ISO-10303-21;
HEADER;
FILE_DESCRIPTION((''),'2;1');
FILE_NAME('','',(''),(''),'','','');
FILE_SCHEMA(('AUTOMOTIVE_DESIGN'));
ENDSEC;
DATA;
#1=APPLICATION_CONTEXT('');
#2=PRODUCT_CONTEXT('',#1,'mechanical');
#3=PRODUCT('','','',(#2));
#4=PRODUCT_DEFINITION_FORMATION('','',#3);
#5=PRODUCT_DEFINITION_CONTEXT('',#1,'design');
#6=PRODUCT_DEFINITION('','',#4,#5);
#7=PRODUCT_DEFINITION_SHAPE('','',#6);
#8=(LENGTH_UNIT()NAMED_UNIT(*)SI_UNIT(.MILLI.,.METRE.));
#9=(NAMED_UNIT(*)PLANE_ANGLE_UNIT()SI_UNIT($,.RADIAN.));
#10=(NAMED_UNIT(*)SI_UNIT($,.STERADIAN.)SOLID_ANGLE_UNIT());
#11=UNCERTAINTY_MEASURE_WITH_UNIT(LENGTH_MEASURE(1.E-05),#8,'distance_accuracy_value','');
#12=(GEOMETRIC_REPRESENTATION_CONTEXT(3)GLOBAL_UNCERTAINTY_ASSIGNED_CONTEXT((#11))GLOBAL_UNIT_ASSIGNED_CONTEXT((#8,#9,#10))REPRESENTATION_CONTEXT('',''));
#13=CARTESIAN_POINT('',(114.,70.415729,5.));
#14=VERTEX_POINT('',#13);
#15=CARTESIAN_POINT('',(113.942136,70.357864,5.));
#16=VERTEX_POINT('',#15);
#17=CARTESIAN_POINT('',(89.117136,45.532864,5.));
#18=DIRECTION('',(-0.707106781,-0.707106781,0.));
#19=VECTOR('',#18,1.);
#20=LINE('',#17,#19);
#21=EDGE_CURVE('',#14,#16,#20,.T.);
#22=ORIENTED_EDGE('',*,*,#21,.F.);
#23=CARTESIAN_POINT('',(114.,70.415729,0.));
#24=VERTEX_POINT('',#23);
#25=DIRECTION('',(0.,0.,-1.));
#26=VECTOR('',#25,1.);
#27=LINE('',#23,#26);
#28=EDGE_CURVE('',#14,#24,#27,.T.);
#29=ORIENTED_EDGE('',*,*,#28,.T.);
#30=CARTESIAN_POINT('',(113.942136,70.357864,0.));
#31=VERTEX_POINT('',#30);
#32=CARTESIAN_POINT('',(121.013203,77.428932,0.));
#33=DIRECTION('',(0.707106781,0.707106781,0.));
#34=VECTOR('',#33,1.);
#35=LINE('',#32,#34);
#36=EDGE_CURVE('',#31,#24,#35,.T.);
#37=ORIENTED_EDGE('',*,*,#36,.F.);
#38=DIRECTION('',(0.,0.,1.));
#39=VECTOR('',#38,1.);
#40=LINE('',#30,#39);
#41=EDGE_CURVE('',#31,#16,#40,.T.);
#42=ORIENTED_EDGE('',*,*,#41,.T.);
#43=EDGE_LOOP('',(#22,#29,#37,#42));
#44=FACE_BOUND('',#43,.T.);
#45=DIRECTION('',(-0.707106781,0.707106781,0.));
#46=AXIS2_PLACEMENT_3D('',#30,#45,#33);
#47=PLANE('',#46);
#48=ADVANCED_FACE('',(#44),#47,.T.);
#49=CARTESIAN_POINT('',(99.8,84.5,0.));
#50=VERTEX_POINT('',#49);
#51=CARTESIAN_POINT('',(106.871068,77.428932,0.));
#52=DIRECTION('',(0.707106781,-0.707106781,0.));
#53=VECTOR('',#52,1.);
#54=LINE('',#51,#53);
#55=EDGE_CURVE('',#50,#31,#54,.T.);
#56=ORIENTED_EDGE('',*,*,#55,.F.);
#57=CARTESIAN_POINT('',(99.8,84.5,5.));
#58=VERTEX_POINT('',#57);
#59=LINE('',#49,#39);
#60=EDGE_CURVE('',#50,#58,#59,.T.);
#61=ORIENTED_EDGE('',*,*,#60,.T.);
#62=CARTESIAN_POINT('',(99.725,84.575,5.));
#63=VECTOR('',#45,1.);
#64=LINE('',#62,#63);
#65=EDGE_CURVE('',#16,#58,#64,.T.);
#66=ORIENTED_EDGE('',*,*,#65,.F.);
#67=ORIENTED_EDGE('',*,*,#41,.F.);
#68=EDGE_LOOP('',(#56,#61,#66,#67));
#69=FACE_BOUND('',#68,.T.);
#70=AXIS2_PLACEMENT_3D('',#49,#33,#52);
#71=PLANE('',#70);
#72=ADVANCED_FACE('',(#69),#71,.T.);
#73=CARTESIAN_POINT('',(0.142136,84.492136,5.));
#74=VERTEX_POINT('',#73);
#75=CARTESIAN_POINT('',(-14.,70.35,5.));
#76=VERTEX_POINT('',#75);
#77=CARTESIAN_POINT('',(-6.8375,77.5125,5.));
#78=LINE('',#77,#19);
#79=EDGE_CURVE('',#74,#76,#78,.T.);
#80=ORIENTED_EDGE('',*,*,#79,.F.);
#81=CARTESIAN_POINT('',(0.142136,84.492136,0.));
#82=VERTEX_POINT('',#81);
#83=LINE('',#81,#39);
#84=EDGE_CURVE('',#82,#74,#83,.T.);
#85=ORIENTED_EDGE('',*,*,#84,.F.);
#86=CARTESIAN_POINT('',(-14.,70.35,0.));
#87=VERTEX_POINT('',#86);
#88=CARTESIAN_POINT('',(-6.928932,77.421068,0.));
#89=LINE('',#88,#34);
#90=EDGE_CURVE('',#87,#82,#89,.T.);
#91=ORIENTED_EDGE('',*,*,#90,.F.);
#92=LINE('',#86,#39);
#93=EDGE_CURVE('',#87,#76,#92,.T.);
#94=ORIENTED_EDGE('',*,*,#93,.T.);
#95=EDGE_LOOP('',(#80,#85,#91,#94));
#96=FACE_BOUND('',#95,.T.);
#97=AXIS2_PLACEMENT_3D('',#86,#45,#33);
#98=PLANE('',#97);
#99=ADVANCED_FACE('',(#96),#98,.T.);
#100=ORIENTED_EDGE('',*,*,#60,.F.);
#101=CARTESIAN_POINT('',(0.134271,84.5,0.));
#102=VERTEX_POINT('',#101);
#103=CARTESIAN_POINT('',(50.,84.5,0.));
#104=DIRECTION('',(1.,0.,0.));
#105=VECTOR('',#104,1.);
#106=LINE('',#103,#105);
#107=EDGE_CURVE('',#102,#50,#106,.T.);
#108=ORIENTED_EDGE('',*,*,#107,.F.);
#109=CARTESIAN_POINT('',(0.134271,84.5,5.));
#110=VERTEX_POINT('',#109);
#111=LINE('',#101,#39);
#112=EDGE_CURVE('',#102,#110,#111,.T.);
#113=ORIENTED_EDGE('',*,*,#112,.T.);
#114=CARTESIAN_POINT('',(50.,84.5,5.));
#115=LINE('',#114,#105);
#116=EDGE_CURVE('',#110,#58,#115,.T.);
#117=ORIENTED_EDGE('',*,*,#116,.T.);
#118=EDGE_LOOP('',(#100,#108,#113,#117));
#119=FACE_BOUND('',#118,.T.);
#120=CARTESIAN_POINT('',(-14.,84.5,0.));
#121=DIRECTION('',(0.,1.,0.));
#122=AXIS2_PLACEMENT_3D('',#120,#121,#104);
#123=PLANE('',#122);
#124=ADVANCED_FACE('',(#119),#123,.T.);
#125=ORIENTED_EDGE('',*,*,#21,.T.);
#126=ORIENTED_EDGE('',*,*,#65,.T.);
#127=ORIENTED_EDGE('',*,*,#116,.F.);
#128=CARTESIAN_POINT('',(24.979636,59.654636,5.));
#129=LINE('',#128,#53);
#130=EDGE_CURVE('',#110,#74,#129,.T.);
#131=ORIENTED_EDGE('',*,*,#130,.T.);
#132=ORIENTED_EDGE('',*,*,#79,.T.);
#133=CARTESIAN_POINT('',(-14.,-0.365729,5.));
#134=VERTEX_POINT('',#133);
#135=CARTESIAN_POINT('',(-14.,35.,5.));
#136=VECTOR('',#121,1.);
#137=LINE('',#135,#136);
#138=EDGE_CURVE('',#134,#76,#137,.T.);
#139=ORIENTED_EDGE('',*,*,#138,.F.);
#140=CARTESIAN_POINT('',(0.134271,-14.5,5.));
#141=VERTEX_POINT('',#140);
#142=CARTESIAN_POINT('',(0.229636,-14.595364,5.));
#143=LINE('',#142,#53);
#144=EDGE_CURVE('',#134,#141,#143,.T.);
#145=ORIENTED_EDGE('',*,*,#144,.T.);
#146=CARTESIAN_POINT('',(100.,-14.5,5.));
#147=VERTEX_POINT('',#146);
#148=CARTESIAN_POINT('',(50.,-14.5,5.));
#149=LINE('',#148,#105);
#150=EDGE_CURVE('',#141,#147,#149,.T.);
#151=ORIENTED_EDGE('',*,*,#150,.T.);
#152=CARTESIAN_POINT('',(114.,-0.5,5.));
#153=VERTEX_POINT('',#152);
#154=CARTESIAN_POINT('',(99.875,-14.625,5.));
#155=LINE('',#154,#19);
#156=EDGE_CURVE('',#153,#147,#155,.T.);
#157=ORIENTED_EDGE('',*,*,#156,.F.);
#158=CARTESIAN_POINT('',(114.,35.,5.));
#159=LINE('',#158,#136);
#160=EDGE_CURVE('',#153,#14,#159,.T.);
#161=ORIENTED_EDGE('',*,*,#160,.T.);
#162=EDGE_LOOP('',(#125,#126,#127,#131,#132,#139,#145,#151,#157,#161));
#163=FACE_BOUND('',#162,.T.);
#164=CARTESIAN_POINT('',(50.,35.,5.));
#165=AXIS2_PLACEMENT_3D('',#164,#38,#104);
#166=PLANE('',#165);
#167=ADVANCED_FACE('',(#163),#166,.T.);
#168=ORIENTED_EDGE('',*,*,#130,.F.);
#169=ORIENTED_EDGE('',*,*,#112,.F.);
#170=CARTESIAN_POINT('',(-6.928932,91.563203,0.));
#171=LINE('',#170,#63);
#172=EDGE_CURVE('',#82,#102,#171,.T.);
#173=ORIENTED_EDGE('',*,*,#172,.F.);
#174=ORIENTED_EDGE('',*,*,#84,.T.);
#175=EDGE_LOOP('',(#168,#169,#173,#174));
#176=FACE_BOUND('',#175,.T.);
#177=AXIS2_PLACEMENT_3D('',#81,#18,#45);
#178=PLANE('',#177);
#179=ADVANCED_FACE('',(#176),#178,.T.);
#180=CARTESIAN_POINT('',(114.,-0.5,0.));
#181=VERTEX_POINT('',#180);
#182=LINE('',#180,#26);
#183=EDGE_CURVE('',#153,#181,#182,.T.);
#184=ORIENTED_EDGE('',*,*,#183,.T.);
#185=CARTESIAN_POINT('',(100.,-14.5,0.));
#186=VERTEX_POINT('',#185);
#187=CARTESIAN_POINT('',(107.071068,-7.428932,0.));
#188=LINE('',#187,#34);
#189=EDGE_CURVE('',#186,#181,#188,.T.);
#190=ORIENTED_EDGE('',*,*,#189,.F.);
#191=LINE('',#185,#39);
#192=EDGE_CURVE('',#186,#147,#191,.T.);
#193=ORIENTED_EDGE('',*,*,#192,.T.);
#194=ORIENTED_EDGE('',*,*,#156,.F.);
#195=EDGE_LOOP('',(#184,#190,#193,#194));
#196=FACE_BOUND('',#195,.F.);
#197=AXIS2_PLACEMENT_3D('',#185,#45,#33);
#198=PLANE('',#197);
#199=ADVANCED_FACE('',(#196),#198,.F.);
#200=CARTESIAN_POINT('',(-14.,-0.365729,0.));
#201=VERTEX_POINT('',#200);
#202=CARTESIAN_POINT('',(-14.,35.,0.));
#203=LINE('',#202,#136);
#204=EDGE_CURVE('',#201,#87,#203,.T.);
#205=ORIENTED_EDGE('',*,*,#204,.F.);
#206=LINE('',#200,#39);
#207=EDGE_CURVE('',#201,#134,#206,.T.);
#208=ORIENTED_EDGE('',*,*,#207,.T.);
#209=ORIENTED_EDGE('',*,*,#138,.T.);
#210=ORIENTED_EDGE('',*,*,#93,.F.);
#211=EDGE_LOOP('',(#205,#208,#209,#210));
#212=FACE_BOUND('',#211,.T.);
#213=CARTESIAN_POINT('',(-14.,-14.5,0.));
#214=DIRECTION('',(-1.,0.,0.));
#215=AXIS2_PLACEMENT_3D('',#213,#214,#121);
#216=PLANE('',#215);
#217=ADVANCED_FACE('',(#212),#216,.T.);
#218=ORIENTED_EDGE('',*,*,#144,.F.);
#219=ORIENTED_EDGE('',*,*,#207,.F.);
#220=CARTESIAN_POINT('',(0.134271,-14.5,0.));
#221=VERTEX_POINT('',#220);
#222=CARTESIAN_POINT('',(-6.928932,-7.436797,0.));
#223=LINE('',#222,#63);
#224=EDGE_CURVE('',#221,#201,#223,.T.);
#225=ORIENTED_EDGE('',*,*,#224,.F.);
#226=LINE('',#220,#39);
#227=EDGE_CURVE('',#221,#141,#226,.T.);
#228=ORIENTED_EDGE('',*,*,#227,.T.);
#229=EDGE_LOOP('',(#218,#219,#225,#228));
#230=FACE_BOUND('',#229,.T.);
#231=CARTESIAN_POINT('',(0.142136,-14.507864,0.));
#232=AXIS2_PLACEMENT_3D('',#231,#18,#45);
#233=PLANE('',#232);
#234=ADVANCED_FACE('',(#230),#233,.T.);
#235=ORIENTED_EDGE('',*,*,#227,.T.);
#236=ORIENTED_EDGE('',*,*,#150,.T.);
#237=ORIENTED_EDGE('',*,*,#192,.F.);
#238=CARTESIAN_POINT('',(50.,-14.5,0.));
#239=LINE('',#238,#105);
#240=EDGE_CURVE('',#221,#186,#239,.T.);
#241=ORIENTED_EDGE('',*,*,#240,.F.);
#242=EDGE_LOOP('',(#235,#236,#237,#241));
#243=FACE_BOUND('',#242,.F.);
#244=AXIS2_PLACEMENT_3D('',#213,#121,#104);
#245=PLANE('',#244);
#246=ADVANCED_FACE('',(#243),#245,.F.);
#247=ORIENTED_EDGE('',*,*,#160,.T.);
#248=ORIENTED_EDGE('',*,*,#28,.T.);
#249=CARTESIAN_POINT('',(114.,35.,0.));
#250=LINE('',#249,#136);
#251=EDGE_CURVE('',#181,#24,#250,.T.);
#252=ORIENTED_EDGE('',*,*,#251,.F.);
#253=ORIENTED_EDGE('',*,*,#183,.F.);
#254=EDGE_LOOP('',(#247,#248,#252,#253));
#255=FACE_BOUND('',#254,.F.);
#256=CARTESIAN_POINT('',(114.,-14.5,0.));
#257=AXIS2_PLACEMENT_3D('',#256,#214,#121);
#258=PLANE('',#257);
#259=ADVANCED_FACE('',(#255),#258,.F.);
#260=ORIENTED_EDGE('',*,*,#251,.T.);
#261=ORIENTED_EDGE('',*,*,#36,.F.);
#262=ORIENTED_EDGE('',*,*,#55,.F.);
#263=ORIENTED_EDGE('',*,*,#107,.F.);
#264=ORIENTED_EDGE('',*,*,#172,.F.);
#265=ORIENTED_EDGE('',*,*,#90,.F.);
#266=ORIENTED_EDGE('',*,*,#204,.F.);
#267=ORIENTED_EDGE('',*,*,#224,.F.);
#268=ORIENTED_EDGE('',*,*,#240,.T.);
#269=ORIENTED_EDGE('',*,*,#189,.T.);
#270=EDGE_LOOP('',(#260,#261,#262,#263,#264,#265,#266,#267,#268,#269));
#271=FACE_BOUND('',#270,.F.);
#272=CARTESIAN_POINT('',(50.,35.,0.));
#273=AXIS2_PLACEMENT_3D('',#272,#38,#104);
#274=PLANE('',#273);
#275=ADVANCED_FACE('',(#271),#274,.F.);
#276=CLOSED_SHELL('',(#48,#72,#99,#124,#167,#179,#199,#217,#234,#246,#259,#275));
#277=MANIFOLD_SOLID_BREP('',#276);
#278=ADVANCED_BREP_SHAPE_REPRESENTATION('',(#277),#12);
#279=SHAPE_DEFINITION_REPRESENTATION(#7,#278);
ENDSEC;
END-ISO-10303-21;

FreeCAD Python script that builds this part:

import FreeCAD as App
import Part
import Sketcher
from FreeCAD import Vector
Q = App.Units.Quantity

doc = App.newDocument("Part")
body = doc.addObject("PartDesign::Body", "Body")

sketch1 = doc.addObject("Sketcher::SketchObject", "Sketch")
body.addObject(sketch1)
sketch1.AttachmentSupport = (doc.XY_Plane, [""])
sketch1.MapMode = "FlatFace"
sketch1.addGeometry([
    Part.LineSegment(Vector(0, 20, 0), Vector(0, 0, 0)),
    Part.LineSegment(Vector(0, 0, 0), Vector(20, 0, 0)),
    Part.LineSegment(Vector(20, 0, 0), Vector(20, 20, 0)),
    Part.LineSegment(Vector(20, 20, 0), Vector(0, 20, 0)),
], False)
sketch1.addConstraint([
    Sketcher.Constraint("Coincident", 0, 2, 1, 1),
    Sketcher.Constraint("Coincident", 1, 2, 2, 1),
    Sketcher.Constraint("Coincident", 2, 2, 3, 1),
    Sketcher.Constraint("Coincident", 3, 2, 0, 1),
    Sketcher.Constraint("Vertical", 0),
    Sketcher.Constraint("Horizontal", 1),
    Sketcher.Constraint("Vertical", 2),
    Sketcher.Constraint("Horizontal", 3),
    Sketcher.Constraint("Coincident", 0, 2, -1, 1),
    Sketcher.Constraint("Equal", 3, 0),
    Sketcher.Constraint("DistanceX", 1, 1, 1, 2, Q("20 mm")),
])
pad1 = doc.addObject("PartDesign::Pad", "Pad")
body.addObject(pad1)
pad1.Profile = sketch1
pad1.Length = 20
body2 = doc.addObject("PartDesign::Body", "Body001")
doc.recompute()

body.Placement = App.Placement(Vector(-14, -28.65, 0), App.Rotation(Vector(0, 0, 1), 45))
boolean = doc.addObject("PartDesign::Boolean", "Boolean")
body2.addObject(boolean)
boolean.Type = "Fuse"
boolean.addObjects([body])
body3 = doc.addObject("PartDesign::Body", "Body002")

sketch2 = doc.addObject("Sketcher::SketchObject", "Sketch001")
body3.addObject(sketch2)
sketch2.AttachmentSupport = (doc.getObject("XY_Plane002"), [""])
sketch2.MapMode = "FlatFace"
sketch2.addGeometry([
    Part.LineSegment(Vector(0, 20, 0), Vector(0, 0, 0)),
    Part.LineSegment(Vector(0, 0, 0), Vector(20, 0, 0)),
    Part.LineSegment(Vector(20, 0, 0), Vector(20, 20, 0)),
    Part.LineSegment(Vector(20, 20, 0), Vector(0, 20, 0)),
], False)
sketch2.addConstraint([
    Sketcher.Constraint("Coincident", 0, 2, 1, 1),
    Sketcher.Constraint("Coincident", 1, 2, 2, 1),
    Sketcher.Constraint("Coincident", 2, 2, 3, 1),
    Sketcher.Constraint("Coincident", 3, 2, 0, 1),
    Sketcher.Constraint("Vertical", 0),
    Sketcher.Constraint("Horizontal", 1),
    Sketcher.Constraint("Vertical", 2),
    Sketcher.Constraint("Horizontal", 3),
    Sketcher.Constraint("Coincident", 0, 2, -1, 1),
    Sketcher.Constraint("Equal", 3, 0),
    Sketcher.Constraint("DistanceX", 1, 1, 1, 2, Q("20 mm")),
])
pad2 = doc.addObject("PartDesign::Pad", "Pad001")
body3.addObject(pad2)
pad2.Profile = sketch2
pad2.Length = 20
body4 = doc.addObject("PartDesign::Body", "Body003")
doc.recompute()

body3.Placement = App.Placement(Vector(-14, 70.35, 0), App.Rotation(Vector(0, 0, 1), 45))
boolean2 = doc.addObject("PartDesign::Boolean", "Boolean001")
body4.addObject(boolean2)
boolean2.Type = "Fuse"
boolean2.addObjects([body3])
body5 = doc.addObject("PartDesign::Body", "Body004")

sketch3 = doc.addObject("Sketcher::SketchObject", "Sketch002")
body5.addObject(sketch3)
sketch3.AttachmentSupport = (doc.getObject("XY_Plane004"), [""])
sketch3.MapMode = "FlatFace"
sketch3.addGeometry([
    Part.LineSegment(Vector(0, 20, 0), Vector(0, 0, 0)),
    Part.LineSegment(Vector(0, 0, 0), Vector(20, 0, 0)),
    Part.LineSegment(Vector(20, 0, 0), Vector(20, 20, 0)),
    Part.LineSegment(Vector(20, 20, 0), Vector(0, 20, 0)),
], False)
sketch3.addConstraint([
    Sketcher.Constraint("Coincident", 0, 2, 1, 1),
    Sketcher.Constraint("Coincident", 1, 2, 2, 1),
    Sketcher.Constraint("Coincident", 2, 2, 3, 1),
    Sketcher.Constraint("Coincident", 3, 2, 0, 1),
    Sketcher.Constraint("Vertical", 0),
    Sketcher.Constraint("Horizontal", 1),
    Sketcher.Constraint("Vertical", 2),
    Sketcher.Constraint("Horizontal", 3),
    Sketcher.Constraint("Coincident", 0, 2, -1, 1),
    Sketcher.Constraint("Equal", 3, 0),
    Sketcher.Constraint("DistanceX", 1, 1, 1, 2, Q("20 mm")),
])
pad3 = doc.addObject("PartDesign::Pad", "Pad002")
body5.addObject(pad3)
pad3.Profile = sketch3
pad3.Length = 20
body6 = doc.addObject("PartDesign::Body", "Body005")
doc.recompute()

body5.Placement = App.Placement(Vector(100, -14.5, 0), App.Rotation(Vector(0, 0, 1), 315))
boolean3 = doc.addObject("PartDesign::Boolean", "Boolean002")
body6.addObject(boolean3)
boolean3.Type = "Fuse"
boolean3.addObjects([body5])
body7 = doc.addObject("PartDesign::Body", "Body006")

sketch4 = doc.addObject("Sketcher::SketchObject", "Sketch003")
body7.addObject(sketch4)
sketch4.AttachmentSupport = (doc.getObject("XY_Plane006"), [""])
sketch4.MapMode = "FlatFace"
sketch4.addGeometry([
    Part.LineSegment(Vector(0, 20, 0), Vector(0, 0, 0)),
    Part.LineSegment(Vector(0, 0, 0), Vector(20, 0, 0)),
    Part.LineSegment(Vector(20, 0, 0), Vector(20, 20, 0)),
    Part.LineSegment(Vector(20, 20, 0), Vector(0, 20, 0)),
], False)
sketch4.addConstraint([
    Sketcher.Constraint("Coincident", 0, 2, 1, 1),
    Sketcher.Constraint("Coincident", 1, 2, 2, 1),
    Sketcher.Constraint("Coincident", 2, 2, 3, 1),
    Sketcher.Constraint("Coincident", 3, 2, 0, 1),
    Sketcher.Constraint("Vertical", 0),
    Sketcher.Constraint("Horizontal", 1),
    Sketcher.Constraint("Vertical", 2),
    Sketcher.Constraint("Horizontal", 3),
    Sketcher.Constraint("Coincident", 0, 2, -1, 1),
    Sketcher.Constraint("Equal", 3, 0),
    Sketcher.Constraint("DistanceX", 1, 1, 1, 2, Q("20 mm")),
])
pad4 = doc.addObject("PartDesign::Pad", "Pad003")
body7.addObject(pad4)
pad4.Profile = sketch4
pad4.Length = 20
body8 = doc.addObject("PartDesign::Body", "Body007")
body8.AllowCompound = True
doc.recompute()

body7.Placement = App.Placement(Vector(99.8, 84.5, 0), App.Rotation(Vector(0, 0, 1), 315))
boolean4 = doc.addObject("PartDesign::Boolean", "Boolean003")
body8.addObject(boolean4)
boolean4.Type = "Fuse"
boolean4.addObjects([body7])
doc.recompute()

boolean5 = doc.addObject("PartDesign::Boolean", "Boolean004")
body8.addObject(boolean5)
boolean5.Type = "Fuse"
boolean5.addObjects([body2])
doc.recompute()

boolean6 = doc.addObject("PartDesign::Boolean", "Boolean005")
body8.addObject(boolean6)
boolean6.Type = "Fuse"
boolean6.addObjects([body4])
doc.recompute()

boolean7 = doc.addObject("PartDesign::Boolean", "Boolean006")
body8.addObject(boolean7)
boolean7.Type = "Fuse"
boolean7.addObjects([body6])
body9 = doc.addObject("PartDesign::Body", "Body008")

sketch5 = doc.addObject("Sketcher::SketchObject", "Sketch004")
body9.addObject(sketch5)
sketch5.AttachmentSupport = (doc.getObject("XY_Plane008"), [""])
sketch5.MapMode = "FlatFace"
sketch5.addGeometry([
    Part.LineSegment(Vector(-14, 84, 0), Vector(-14, -14, 0)),
    Part.LineSegment(Vector(-14, -14, 0), Vector(114, -14, 0)),
    Part.LineSegment(Vector(114, -14, 0), Vector(114, 84, 0)),
    Part.LineSegment(Vector(114, 84, 0), Vector(-14, 84, 0)),
], False)
sketch5.addConstraint([
    Sketcher.Constraint("Coincident", 0, 2, 1, 1),
    Sketcher.Constraint("Coincident", 1, 2, 2, 1),
    Sketcher.Constraint("Coincident", 2, 2, 3, 1),
    Sketcher.Constraint("Coincident", 3, 2, 0, 1),
    Sketcher.Constraint("Vertical", 0),
    Sketcher.Constraint("Horizontal", 1),
    Sketcher.Constraint("Vertical", 2),
    Sketcher.Constraint("Horizontal", 3),
    Sketcher.Constraint("DistanceX", 1, 1, 1, 2, Q("128 mm")),
    Sketcher.Constraint("DistanceY", 0, 2, 0, 1, Q("99 mm")),
    Sketcher.Constraint("DistanceX", 0, 2, -1, 1, Q("14 mm")),
    Sketcher.Constraint("DistanceY", 0, 2, -1, 1, Q("14.5 mm")),
])
pad5 = doc.addObject("PartDesign::Pad", "Pad004")
body9.addObject(pad5)
pad5.Profile = sketch5
pad5.Length = 5
doc.recompute()

boolean8 = doc.addObject("PartDesign::Boolean", "Boolean007")
body9.addObject(boolean8)
boolean8.Type = "Cut"
boolean8.addObjects([body8])

doc.recompute()
